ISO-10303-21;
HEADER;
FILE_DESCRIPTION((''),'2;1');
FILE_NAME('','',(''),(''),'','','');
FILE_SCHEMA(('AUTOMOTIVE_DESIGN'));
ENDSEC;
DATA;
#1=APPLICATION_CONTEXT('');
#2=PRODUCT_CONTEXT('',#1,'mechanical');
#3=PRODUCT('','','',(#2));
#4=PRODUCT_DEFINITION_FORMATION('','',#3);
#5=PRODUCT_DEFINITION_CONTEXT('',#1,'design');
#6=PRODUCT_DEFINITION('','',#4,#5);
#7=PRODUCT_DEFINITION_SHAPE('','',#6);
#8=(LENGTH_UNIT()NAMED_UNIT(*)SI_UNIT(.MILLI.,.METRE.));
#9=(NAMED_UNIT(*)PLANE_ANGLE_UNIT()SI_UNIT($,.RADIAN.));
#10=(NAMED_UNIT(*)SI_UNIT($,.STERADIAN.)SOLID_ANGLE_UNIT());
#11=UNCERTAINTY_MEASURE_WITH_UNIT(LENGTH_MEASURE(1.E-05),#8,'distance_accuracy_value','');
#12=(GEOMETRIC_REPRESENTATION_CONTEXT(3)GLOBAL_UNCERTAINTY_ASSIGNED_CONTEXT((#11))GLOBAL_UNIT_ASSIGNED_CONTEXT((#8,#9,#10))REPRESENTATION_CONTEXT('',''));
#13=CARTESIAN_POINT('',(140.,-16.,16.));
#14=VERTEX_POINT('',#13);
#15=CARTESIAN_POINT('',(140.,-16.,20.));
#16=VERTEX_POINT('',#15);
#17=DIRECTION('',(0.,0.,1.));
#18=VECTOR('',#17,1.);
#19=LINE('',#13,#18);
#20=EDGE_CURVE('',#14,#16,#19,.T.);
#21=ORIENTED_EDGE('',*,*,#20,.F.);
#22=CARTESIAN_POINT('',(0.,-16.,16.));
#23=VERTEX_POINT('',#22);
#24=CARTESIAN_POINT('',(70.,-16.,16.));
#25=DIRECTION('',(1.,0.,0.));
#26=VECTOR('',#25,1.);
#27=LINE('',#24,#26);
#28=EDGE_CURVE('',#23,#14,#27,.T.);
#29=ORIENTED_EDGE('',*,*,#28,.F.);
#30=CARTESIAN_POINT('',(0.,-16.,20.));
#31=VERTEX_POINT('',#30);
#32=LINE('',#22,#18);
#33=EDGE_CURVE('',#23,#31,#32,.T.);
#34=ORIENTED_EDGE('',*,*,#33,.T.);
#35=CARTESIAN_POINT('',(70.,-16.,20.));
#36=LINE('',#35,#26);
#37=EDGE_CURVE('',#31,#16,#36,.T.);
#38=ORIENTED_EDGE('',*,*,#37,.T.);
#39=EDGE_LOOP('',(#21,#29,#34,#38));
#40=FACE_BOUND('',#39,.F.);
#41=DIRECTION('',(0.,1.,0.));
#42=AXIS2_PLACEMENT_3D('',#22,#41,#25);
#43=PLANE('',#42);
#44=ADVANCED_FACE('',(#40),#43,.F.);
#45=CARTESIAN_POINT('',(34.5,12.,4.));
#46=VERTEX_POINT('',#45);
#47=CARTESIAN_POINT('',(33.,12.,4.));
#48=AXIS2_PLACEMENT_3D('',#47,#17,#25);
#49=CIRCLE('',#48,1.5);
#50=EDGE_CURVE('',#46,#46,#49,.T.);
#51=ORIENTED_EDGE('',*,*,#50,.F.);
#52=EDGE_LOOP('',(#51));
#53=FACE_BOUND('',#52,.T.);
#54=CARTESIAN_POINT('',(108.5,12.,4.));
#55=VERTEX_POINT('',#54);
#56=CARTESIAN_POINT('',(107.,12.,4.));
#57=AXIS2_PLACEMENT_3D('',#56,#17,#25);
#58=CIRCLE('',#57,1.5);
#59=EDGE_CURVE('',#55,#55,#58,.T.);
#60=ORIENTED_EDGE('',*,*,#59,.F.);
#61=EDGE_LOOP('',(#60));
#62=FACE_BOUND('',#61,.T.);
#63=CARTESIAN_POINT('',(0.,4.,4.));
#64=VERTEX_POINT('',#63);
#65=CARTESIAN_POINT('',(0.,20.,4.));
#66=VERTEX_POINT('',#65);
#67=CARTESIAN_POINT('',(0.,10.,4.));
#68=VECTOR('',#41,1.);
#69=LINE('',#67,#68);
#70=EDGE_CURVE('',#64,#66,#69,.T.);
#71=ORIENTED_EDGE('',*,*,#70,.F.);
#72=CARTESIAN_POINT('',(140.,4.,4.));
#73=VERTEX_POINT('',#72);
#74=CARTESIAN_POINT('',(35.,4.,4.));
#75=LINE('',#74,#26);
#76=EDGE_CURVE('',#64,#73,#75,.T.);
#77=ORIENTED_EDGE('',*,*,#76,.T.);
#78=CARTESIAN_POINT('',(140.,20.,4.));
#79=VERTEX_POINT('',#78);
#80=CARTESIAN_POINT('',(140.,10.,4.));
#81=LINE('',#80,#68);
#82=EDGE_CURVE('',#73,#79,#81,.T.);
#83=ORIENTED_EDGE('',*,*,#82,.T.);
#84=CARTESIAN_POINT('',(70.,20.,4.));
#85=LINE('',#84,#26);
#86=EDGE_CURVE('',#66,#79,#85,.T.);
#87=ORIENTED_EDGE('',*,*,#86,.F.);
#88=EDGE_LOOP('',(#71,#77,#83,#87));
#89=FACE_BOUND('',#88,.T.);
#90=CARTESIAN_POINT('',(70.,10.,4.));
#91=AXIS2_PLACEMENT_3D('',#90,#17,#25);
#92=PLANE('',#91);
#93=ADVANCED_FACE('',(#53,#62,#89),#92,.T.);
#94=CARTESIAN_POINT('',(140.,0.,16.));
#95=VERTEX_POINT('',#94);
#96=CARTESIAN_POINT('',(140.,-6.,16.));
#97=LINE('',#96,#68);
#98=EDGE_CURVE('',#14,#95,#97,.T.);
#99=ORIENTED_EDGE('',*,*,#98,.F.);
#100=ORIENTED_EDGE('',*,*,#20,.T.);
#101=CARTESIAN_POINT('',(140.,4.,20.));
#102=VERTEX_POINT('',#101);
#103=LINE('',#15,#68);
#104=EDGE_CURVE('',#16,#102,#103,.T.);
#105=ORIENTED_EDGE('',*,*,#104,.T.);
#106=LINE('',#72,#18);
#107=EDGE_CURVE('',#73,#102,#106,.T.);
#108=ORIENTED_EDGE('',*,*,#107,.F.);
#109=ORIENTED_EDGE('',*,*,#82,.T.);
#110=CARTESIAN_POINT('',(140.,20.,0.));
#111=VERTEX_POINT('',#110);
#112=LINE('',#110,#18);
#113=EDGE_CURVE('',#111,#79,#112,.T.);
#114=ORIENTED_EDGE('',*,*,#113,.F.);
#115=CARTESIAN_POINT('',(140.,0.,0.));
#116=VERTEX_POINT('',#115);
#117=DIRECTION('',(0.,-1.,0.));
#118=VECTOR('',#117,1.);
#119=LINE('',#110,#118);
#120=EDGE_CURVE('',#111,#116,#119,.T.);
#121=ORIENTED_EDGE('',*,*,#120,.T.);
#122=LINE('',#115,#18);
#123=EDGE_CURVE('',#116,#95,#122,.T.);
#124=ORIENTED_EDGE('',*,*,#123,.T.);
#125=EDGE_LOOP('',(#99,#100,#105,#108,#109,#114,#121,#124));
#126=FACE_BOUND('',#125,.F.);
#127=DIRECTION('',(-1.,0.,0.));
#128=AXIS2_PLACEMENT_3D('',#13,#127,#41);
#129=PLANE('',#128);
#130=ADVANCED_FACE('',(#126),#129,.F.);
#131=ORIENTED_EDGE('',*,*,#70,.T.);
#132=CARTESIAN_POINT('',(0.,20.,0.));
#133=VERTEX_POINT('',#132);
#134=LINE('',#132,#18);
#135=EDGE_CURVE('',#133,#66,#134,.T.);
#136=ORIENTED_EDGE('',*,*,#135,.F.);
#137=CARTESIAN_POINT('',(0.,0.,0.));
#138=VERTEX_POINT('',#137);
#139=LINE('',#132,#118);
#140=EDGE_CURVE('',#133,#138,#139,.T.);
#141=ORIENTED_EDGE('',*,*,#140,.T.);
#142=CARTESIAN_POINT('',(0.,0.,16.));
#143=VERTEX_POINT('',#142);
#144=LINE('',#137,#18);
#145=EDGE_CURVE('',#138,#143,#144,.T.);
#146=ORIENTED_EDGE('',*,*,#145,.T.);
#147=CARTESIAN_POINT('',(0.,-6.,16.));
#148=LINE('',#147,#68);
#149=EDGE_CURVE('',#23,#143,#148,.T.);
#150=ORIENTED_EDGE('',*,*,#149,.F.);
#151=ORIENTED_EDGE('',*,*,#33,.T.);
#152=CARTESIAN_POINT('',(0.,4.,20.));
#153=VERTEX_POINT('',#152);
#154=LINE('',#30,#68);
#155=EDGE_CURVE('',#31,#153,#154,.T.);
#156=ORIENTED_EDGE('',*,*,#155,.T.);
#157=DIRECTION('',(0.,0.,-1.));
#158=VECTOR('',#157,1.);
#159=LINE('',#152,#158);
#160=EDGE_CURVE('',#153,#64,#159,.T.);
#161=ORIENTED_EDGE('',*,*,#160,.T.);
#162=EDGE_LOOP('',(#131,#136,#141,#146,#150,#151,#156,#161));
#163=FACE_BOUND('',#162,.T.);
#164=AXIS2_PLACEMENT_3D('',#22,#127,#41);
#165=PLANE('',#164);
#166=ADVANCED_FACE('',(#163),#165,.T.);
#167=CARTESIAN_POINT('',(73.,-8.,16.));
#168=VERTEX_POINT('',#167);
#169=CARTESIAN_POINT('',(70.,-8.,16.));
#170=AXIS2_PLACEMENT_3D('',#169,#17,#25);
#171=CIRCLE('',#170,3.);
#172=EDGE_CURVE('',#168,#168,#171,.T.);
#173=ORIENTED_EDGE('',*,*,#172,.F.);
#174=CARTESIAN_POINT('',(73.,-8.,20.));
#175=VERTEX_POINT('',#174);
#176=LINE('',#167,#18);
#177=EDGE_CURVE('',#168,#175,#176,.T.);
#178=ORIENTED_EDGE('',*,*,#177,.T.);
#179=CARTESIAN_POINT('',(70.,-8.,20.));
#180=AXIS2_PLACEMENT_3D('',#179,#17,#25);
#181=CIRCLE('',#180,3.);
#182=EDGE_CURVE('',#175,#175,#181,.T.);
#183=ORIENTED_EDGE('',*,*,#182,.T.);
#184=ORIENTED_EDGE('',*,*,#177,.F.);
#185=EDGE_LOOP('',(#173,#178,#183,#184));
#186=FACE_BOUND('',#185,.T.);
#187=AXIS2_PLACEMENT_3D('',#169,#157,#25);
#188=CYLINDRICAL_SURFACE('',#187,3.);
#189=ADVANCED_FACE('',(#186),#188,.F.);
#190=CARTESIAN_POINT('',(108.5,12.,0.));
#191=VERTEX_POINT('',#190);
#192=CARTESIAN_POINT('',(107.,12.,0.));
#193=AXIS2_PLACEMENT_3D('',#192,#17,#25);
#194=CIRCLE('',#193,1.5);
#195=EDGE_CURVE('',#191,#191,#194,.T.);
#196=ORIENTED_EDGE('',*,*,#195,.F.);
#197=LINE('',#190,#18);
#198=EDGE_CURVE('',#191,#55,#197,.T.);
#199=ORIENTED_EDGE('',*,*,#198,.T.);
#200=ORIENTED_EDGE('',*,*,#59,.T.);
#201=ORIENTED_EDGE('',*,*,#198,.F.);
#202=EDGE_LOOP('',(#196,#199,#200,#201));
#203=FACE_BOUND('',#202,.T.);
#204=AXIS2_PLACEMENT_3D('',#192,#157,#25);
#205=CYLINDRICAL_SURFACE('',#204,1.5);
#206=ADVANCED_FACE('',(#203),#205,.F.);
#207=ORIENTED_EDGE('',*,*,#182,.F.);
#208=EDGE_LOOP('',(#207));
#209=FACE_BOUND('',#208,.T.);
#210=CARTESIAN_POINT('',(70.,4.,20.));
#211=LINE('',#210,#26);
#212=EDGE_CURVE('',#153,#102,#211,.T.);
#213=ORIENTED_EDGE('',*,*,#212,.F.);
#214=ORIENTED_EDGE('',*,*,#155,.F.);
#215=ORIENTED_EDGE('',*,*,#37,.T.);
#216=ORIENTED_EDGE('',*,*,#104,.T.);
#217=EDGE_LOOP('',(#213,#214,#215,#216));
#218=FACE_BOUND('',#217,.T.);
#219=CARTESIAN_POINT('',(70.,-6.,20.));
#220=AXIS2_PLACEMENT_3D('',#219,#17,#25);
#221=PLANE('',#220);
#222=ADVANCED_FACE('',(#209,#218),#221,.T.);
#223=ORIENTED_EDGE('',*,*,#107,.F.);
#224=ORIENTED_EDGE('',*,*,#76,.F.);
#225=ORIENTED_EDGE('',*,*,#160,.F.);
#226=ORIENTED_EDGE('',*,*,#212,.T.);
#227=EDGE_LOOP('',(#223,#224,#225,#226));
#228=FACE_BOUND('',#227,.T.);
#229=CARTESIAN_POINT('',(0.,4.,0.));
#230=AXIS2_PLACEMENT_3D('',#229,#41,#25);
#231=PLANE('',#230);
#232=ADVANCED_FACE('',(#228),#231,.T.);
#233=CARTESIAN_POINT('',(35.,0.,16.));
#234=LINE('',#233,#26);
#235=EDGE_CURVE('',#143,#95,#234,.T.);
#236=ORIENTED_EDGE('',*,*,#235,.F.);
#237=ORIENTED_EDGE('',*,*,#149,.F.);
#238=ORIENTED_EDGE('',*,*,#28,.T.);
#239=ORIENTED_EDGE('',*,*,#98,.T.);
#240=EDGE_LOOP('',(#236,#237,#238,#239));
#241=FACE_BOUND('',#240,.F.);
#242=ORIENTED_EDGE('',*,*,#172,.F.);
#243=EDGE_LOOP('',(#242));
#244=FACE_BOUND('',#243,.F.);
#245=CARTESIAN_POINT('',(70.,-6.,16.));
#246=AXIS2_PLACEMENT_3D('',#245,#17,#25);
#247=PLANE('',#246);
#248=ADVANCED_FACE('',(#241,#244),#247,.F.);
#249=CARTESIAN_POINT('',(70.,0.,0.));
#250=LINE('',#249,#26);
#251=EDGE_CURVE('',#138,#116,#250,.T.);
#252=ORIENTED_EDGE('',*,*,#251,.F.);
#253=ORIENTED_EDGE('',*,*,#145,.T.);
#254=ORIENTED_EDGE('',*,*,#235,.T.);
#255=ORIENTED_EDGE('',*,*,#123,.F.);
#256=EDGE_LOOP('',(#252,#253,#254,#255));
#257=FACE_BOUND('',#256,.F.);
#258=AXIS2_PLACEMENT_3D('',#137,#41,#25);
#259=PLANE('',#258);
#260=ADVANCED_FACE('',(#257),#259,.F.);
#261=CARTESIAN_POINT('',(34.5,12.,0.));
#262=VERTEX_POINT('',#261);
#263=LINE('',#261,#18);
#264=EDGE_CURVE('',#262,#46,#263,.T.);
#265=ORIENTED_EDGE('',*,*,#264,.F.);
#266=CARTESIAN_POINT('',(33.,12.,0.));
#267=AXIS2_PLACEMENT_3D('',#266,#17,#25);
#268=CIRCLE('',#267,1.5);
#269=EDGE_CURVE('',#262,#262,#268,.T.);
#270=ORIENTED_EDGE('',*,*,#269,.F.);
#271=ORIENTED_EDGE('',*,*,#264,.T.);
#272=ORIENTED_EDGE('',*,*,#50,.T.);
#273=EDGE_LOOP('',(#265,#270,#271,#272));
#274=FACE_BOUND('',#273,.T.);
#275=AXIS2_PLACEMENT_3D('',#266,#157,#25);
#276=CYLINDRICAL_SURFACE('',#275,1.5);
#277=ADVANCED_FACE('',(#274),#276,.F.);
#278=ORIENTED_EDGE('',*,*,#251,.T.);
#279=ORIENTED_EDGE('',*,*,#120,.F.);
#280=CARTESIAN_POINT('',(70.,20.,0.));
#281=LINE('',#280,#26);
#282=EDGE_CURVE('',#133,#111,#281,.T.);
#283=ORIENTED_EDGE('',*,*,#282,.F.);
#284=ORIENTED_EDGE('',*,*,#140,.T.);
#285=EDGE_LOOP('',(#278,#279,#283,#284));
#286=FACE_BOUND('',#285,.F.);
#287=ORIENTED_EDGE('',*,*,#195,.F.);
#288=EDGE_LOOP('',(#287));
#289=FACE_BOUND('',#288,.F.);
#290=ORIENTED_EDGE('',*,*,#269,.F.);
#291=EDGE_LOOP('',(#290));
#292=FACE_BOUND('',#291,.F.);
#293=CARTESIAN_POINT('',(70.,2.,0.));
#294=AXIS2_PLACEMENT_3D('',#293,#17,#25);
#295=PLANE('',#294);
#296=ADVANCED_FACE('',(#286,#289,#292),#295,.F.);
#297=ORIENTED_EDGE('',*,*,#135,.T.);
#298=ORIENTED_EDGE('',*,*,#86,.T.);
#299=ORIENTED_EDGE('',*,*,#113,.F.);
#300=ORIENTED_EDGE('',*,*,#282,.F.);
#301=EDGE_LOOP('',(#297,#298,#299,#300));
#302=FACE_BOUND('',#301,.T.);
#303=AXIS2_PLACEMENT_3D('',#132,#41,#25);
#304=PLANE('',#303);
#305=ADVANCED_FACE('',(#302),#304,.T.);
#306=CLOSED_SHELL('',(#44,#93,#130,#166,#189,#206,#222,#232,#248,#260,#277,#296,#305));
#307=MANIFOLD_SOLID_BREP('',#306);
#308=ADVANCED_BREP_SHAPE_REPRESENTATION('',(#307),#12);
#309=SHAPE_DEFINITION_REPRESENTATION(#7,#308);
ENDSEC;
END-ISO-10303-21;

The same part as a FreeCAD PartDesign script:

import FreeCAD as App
import Part
import Sketcher


def add_polygon(sketch, points):
    """Adds a closed chain of lines whose ends are joined by coincident constraints."""
    first, n = sketch.GeometryCount, len(points)
    for a, b in zip(points, points[1:] + points[:1]):
        sketch.addGeometry(Part.LineSegment(App.Vector(*a, 0), App.Vector(*b, 0)), False)
    for i in range(n):
        sketch.addConstraint(Sketcher.Constraint("Coincident", first + i, 2, first + (i + 1) % n, 1))

doc = App.newDocument("Part")
params = doc.addObject("Spreadsheet::Sheet", "Params")
for row, (alias, value) in enumerate([
    ("sketch1_diameter", "3 mm"),
    ("pad1_length", "4 mm"),
    ("sketch2_diameter", "6 mm"),
    ("pad2_length", "4 mm"),
    ("sketch3_diameter", "3 mm"),
    ("pad3_length", "4 mm"),
    ("sketch4_width", "140 mm"),
    ("sketch4_height", "20 mm"),
    ("pad4_length", "4 mm"),
    ("sketch5_width", "140 mm"),
    ("sketch5_height", "20 mm"),
    ("pad5_length", "4 mm"),
    ("sketch6_width", "140 mm"),
    ("sketch6_height", "4 mm"),
    ("pad6_length", "20 mm"),
], start=1):
    params.set(f"A{row}", alias)
    params.set(f"B{row}", "=" + value)
    params.setAlias(f"B{row}", alias)

body = doc.addObject("PartDesign::Body", "Body")

# Sketch on XY plane
sketch1 = body.newObject("Sketcher::SketchObject", "Sketch")
sketch1.AttachmentSupport = (doc.getObject("XY_Plane"), [""])
sketch1.MapMode = "FlatFace"
sketch1.addGeometry(Part.Circle(App.Vector(33, 12, 0), App.Vector(0, 0, 1), 1.5), False)
sketch1.addConstraint([
    Sketcher.Constraint("Diameter", 0, 3.0),
    Sketcher.Constraint("DistanceX", -1, 1, 0, 3, 33.0),
    Sketcher.Constraint("DistanceY", -1, 1, 0, 3, 12.0),
])
sketch1.setExpression("Constraints[0]", "Params.sketch1_diameter")
pad1 = body.newObject("PartDesign::Pad", "Pad")
pad1.Profile = sketch1
pad1.setExpression("Length", "Params.pad1_length")
body2 = doc.addObject("PartDesign::Body", "Body001")

# Sketch on XY plane
sketch2 = body2.newObject("Sketcher::SketchObject", "Sketch001")
sketch2.AttachmentSupport = (doc.getObject("XY_Plane001"), [""])
sketch2.MapMode = "FlatFace"
sketch2.AttachmentOffset = App.Placement(App.Vector(0, 0, 16), App.Rotation())
sketch2.addGeometry(Part.Circle(App.Vector(70, -8, 0), App.Vector(0, 0, 1), 3), False)
sketch2.addConstraint([
    Sketcher.Constraint("Diameter", 0, 6.0),
    Sketcher.Constraint("DistanceX", -1, 1, 0, 3, 70.0),
    Sketcher.Constraint("DistanceY", 0, 3, -1, 1, 8.0),
])
sketch2.setExpression("Constraints[0]", "Params.sketch2_diameter")
pad2 = body2.newObject("PartDesign::Pad", "Pad001")
pad2.Profile = sketch2
pad2.setExpression("Length", "Params.pad2_length")
body3 = doc.addObject("PartDesign::Body", "Body002")
body3.AllowCompound = True

# Sketch on XY plane
sketch3 = body3.newObject("Sketcher::SketchObject", "Sketch002")
sketch3.AttachmentSupport = (doc.getObject("XY_Plane002"), [""])
sketch3.MapMode = "FlatFace"
sketch3.addGeometry(Part.Circle(App.Vector(107, 12, 0), App.Vector(0, 0, 1), 1.5), False)
sketch3.addConstraint([
    Sketcher.Constraint("Diameter", 0, 3.0),
    Sketcher.Constraint("DistanceX", -1, 1, 0, 3, 107.0),
    Sketcher.Constraint("DistanceY", -1, 1, 0, 3, 12.0),
])
sketch3.setExpression("Constraints[0]", "Params.sketch3_diameter")
pad3 = body3.newObject("PartDesign::Pad", "Pad002")
pad3.Profile = sketch3
pad3.setExpression("Length", "Params.pad3_length")
doc.recompute()

boolean = body3.newObject("PartDesign::Boolean", "Boolean")
boolean.Type = "Fuse"
boolean.addObjects([body])
doc.recompute()

boolean2 = body3.newObject("PartDesign::Boolean", "Boolean001")
boolean2.Type = "Fuse"
boolean2.addObjects([body2])
body4 = doc.addObject("PartDesign::Body", "Body003")

# Sketch on XY plane
sketch4 = body4.newObject("Sketcher::SketchObject", "Sketch003")
sketch4.AttachmentSupport = (doc.getObject("XY_Plane003"), [""])
sketch4.MapMode = "FlatFace"
add_polygon(sketch4, [(0, 20), (0, 0), (140, 0), (140, 20)])  # lines 0-3
sketch4.addConstraint([
    Sketcher.Constraint("Vertical", 0),
    Sketcher.Constraint("Horizontal", 1),
    Sketcher.Constraint("Vertical", 2),
    Sketcher.Constraint("Horizontal", 3),
    Sketcher.Constraint("Coincident", 0, 2, -1, 1),
    Sketcher.Constraint("DistanceX", 1, 1, 1, 2, 140.0),
    Sketcher.Constraint("DistanceY", 0, 2, 0, 1, 20.0),
])
sketch4.setExpression("Constraints[9]", "Params.sketch4_width")
sketch4.setExpression("Constraints[10]", "Params.sketch4_height")
pad4 = body4.newObject("PartDesign::Pad", "Pad003")
pad4.Profile = sketch4
pad4.setExpression("Length", "Params.pad4_length")
body5 = doc.addObject("PartDesign::Body", "Body004")

# Sketch on XY plane
sketch5 = body5.newObject("Sketcher::SketchObject", "Sketch004")
sketch5.AttachmentSupport = (doc.getObject("XY_Plane004"), [""])
sketch5.MapMode = "FlatFace"
sketch5.AttachmentOffset = App.Placement(App.Vector(0, 0, 16), App.Rotation())
add_polygon(sketch5, [(0, 4), (0, -16), (140, -16), (140, 4)])  # lines 0-3
sketch5.addConstraint([
    Sketcher.Constraint("Vertical", 0),
    Sketcher.Constraint("Horizontal", 1),
    Sketcher.Constraint("Vertical", 2),
    Sketcher.Constraint("Horizontal", 3),
    Sketcher.Constraint("PointOnObject", 0, 2, -2),
    Sketcher.Constraint("DistanceX", 1, 1, 1, 2, 140.0),
    Sketcher.Constraint("DistanceY", 0, 2, 0, 1, 20.0),
    Sketcher.Constraint("DistanceY", 0, 2, -1, 1, 16.0),
])
sketch5.setExpression("Constraints[9]", "Params.sketch5_width")
sketch5.setExpression("Constraints[10]", "Params.sketch5_height")
pad5 = body5.newObject("PartDesign::Pad", "Pad004")
pad5.Profile = sketch5
pad5.setExpression("Length", "Params.pad5_length")
body6 = doc.addObject("PartDesign::Body", "Body005")

# Sketch on XY plane
sketch6 = body6.newObject("Sketcher::SketchObject", "Sketch005")
sketch6.AttachmentSupport = (doc.getObject("XY_Plane005"), [""])
sketch6.MapMode = "FlatFace"
add_polygon(sketch6, [(0, 4), (0, 0), (140, 0), (140, 4)])  # lines 0-3
sketch6.addConstraint([
    Sketcher.Constraint("Vertical", 0),
    Sketcher.Constraint("Horizontal", 1),
    Sketcher.Constraint("Vertical", 2),
    Sketcher.Constraint("Horizontal", 3),
    Sketcher.Constraint("Coincident", 0, 2, -1, 1),
    Sketcher.Constraint("DistanceX", 1, 1, 1, 2, 140.0),
    Sketcher.Constraint("DistanceY", 0, 2, 0, 1, 4.0),
])
sketch6.setExpression("Constraints[9]", "Params.sketch6_width")
sketch6.setExpression("Constraints[10]", "Params.sketch6_height")
pad6 = body6.newObject("PartDesign::Pad", "Pad005")
pad6.Profile = sketch6
pad6.setExpression("Length", "Params.pad6_length")
doc.recompute()

boolean3 = body6.newObject("PartDesign::Boolean", "Boolean002")
boolean3.Type = "Fuse"
boolean3.addObjects([body4])
doc.recompute()

boolean4 = body6.newObject("PartDesign::Boolean", "Boolean003")
boolean4.Type = "Fuse"
boolean4.addObjects([body5])
doc.recompute()

boolean5 = body6.newObject("PartDesign::Boolean", "Boolean004")
boolean5.Type = "Cut"
boolean5.addObjects([body3])

doc.recompute()
